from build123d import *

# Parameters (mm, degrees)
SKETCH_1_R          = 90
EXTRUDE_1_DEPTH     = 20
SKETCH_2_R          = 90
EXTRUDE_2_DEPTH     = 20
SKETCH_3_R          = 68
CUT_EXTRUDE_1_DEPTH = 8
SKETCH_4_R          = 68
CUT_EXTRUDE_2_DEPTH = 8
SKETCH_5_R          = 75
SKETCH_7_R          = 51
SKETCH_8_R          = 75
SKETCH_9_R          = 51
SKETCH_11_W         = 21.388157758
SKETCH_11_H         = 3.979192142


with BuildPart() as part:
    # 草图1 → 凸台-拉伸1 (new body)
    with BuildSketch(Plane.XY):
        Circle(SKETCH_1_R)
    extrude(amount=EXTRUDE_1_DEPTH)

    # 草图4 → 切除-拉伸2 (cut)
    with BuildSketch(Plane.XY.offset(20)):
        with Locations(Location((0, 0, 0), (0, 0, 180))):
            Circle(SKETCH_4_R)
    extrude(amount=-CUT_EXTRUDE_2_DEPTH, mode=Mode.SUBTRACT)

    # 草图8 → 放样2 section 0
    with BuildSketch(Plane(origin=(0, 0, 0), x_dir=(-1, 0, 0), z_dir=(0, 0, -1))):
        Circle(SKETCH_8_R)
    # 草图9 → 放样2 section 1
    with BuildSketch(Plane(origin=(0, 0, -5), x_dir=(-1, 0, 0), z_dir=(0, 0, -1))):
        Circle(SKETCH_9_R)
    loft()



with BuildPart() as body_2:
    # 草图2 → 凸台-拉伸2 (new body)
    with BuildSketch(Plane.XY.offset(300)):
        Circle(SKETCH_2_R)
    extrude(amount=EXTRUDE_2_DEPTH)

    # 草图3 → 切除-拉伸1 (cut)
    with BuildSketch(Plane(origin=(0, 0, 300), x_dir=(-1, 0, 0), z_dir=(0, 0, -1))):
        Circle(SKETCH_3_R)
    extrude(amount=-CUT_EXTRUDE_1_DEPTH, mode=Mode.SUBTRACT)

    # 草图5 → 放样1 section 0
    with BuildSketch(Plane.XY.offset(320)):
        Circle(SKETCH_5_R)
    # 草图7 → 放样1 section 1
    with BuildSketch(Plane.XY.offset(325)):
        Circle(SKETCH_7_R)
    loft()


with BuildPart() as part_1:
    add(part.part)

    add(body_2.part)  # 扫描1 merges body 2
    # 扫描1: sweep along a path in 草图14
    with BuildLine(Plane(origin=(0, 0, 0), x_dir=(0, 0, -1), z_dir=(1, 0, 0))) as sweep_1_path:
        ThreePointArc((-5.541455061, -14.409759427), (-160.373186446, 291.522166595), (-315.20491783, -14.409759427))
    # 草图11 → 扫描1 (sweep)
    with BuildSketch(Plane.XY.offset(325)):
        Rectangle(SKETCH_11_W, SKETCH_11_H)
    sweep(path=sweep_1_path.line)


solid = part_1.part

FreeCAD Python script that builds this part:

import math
import FreeCAD as App
import Part
import Sketcher


def add_polygon(sketch, points):
    """Adds a closed chain of lines whose ends are joined by coincident constraints."""
    first, n = sketch.GeometryCount, len(points)
    for a, b in zip(points, points[1:] + points[:1]):
        sketch.addGeometry(Part.LineSegment(App.Vector(*a, 0), App.Vector(*b, 0)), False)
    for i in range(n):
        sketch.addConstraint(Sketcher.Constraint("Coincident", first + i, 2, first + (i + 1) % n, 1))

doc = App.newDocument("Part")
body = doc.addObject("PartDesign::Body", "Body")

sketch1 = body.newObject("Sketcher::SketchObject", "Sketch")
sketch1.AttachmentSupport = (doc.getObject("XY_Plane"), [""])
sketch1.MapMode = "FlatFace"
sketch1.addGeometry(Part.Circle(App.Vector(0, 0, 0), App.Vector(0, 0, 1), 90), False)
sketch1.addConstraint([
    Sketcher.Constraint("Coincident", 0, 3, -1, 1),
    Sketcher.Constraint("Diameter", 0, 180.0),
])
pad1 = body.newObject("PartDesign::Pad", "Pad")
pad1.Profile = sketch1
pad1.Length = 20

sketch2 = body.newObject("Sketcher::SketchObject", "Sketch001")
sketch2.AttachmentSupport = (doc.getObject("XY_Plane"), [""])
sketch2.MapMode = "FlatFace"
sketch2.AttachmentOffset = App.Placement(App.Vector(0, 0, 20), App.Rotation())
sketch2.addGeometry(Part.Circle(App.Vector(0, 0, 0), App.Vector(0, 0, 1), 68), False)
sketch2.addConstraint([
    Sketcher.Constraint("Coincident", 0, 3, -1, 1),
    Sketcher.Constraint("Diameter", 0, 136.0),
])
pocket1 = body.newObject("PartDesign::Pocket", "Pocket")
pocket1.Profile = sketch2
pocket1.Length = 8

sketch3 = body.newObject("Sketcher::SketchObject", "Sketch002")
sketch3.AttachmentSupport = (doc.getObject("XY_Plane"), [""])
sketch3.MapMode = "FlatFace"
sketch3.addGeometry(Part.Circle(App.Vector(0, 0, 0), App.Vector(0, 0, 1), 75), False)
sketch3.addConstraint([
    Sketcher.Constraint("Coincident", 0, 3, -1, 1),
    Sketcher.Constraint("Diameter", 0, 150.0),
])

sketch4 = body.newObject("Sketcher::SketchObject", "Sketch003")
sketch4.AttachmentSupport = (doc.getObject("XY_Plane"), [""])
sketch4.MapMode = "FlatFace"
sketch4.AttachmentOffset = App.Placement(App.Vector(0, 0, -5), App.Rotation())
sketch4.addGeometry(Part.Circle(App.Vector(0, 0, 0), App.Vector(0, 0, 1), 51), False)
sketch4.addConstraint([
    Sketcher.Constraint("Coincident", 0, 3, -1, 1),
    Sketcher.Constraint("Diameter", 0, 102.0),
])

additiveloft = body.newObject("PartDesign::AdditiveLoft", "AdditiveLoft")
additiveloft.Profile = sketch3
additiveloft.Sections = [sketch4]
body2 = doc.addObject("PartDesign::Body", "Body001")

sketch5 = body2.newObject("Sketcher::SketchObject", "Sketch004")
sketch5.AttachmentSupport = (doc.getObject("XY_Plane001"), [""])
sketch5.MapMode = "FlatFace"
sketch5.AttachmentOffset = App.Placement(App.Vector(0, 0, 300), App.Rotation())
sketch5.addGeometry(Part.Circle(App.Vector(0, 0, 0), App.Vector(0, 0, 1), 90), False)
sketch5.addConstraint([
    Sketcher.Constraint("Coincident", 0, 3, -1, 1),
    Sketcher.Constraint("Diameter", 0, 180.0),
])
pad2 = body2.newObject("PartDesign::Pad", "Pad001")
pad2.Profile = sketch5
pad2.Length = 20

sketch6 = body2.newObject("Sketcher::SketchObject", "Sketch005")
sketch6.AttachmentSupport = (doc.getObject("XY_Plane001"), [""])
sketch6.MapMode = "FlatFace"
sketch6.AttachmentOffset = App.Placement(App.Vector(0, 0, 300), App.Rotation())
sketch6.addGeometry(Part.Circle(App.Vector(0, 0, 0), App.Vector(0, 0, 1), 68), False)
sketch6.addConstraint([
    Sketcher.Constraint("Coincident", 0, 3, -1, 1),
    Sketcher.Constraint("Diameter", 0, 136.0),
])
pocket2 = body2.newObject("PartDesign::Pocket", "Pocket001")
pocket2.Profile = sketch6
pocket2.Length = 8
pocket2.Reversed = True

sketch7 = body2.newObject("Sketcher::SketchObject", "Sketch006")
sketch7.AttachmentSupport = (doc.getObject("XY_Plane001"), [""])
sketch7.MapMode = "FlatFace"
sketch7.AttachmentOffset = App.Placement(App.Vector(0, 0, 320), App.Rotation())
sketch7.addGeometry(Part.Circle(App.Vector(0, 0, 0), App.Vector(0, 0, 1), 75), False)
sketch7.addConstraint([
    Sketcher.Constraint("Coincident", 0, 3, -1, 1),
    Sketcher.Constraint("Diameter", 0, 150.0),
])

sketch8 = body2.newObject("Sketcher::SketchObject", "Sketch007")
sketch8.AttachmentSupport = (doc.getObject("XY_Plane001"), [""])
sketch8.MapMode = "FlatFace"
sketch8.AttachmentOffset = App.Placement(App.Vector(0, 0, 325), App.Rotation())
sketch8.addGeometry(Part.Circle(App.Vector(0, 0, 0), App.Vector(0, 0, 1), 51), False)
sketch8.addConstraint([
    Sketcher.Constraint("Coincident", 0, 3, -1, 1),
    Sketcher.Constraint("Diameter", 0, 102.0),
])

additiveloft2 = body2.newObject("PartDesign::AdditiveLoft", "AdditiveLoft001")
additiveloft2.Profile = sketch7
additiveloft2.Sections = [sketch8]
body.AllowCompound = True
doc.recompute()

boolean = body.newObject("PartDesign::Boolean", "Boolean")
boolean.Type = "Fuse"
boolean.addObjects([body2])

sketch9 = body.newObject("Sketcher::SketchObject", "Sketch008")
sketch9.AttachmentSupport = (doc.getObject("XY_Plane"), [""])
sketch9.MapMode = "FlatFace"
sketch9.AttachmentOffset = App.Placement(App.Vector(0, 0, 325), App.Rotation())
add_polygon(sketch9, [(-10.7, 2), (-10.7, -2), (10.7, -2), (10.7, 2)])
sketch9.addConstraint([
    Sketcher.Constraint("Vertical", 0),
    Sketcher.Constraint("Horizontal", 1),
    Sketcher.Constraint("Vertical", 2),
    Sketcher.Constraint("Horizontal", 3),
    Sketcher.Constraint("Symmetric", 0, 2, 2, 2, -1, 1),
    Sketcher.Constraint("DistanceX", 1, 1, 1, 2, 21.388158),
    Sketcher.Constraint("DistanceY", 0, 2, 0, 1, 3.979192),
])

sketch10 = body.newObject("Sketcher::SketchObject", "Sketch009")
sketch10.AttachmentSupport = (doc.getObject("YZ_Plane"), [""])
sketch10.MapMode = "FlatFace"
sketch10.addGeometry(Part.ArcOfCircle(Part.Circle(App.Vector(99, 160, 0), App.Vector(0, 0, 1), 192), math.radians(-126), math.radians(126)), False)
sketch10.addConstraint([
    Sketcher.Constraint("Radius", 0, 192.146027),
    Sketcher.Constraint("DistanceX", 0, 1, 0, 3, 113.785899),
    Sketcher.Constraint("DistanceX", 0, 2, 0, 3, 113.785899),
    Sketcher.Constraint("DistanceX", -1, 1, 0, 3, 99.376139),
    Sketcher.Constraint("DistanceY", -1, 1, 0, 3, 160.373186),
])
doc.recompute()

additivepipe = body.newObject("PartDesign::AdditivePipe", "AdditivePipe")
additivepipe.Profile = sketch9
additivepipe.Spine = (sketch10, ["Edge1"])

doc.recompute()
